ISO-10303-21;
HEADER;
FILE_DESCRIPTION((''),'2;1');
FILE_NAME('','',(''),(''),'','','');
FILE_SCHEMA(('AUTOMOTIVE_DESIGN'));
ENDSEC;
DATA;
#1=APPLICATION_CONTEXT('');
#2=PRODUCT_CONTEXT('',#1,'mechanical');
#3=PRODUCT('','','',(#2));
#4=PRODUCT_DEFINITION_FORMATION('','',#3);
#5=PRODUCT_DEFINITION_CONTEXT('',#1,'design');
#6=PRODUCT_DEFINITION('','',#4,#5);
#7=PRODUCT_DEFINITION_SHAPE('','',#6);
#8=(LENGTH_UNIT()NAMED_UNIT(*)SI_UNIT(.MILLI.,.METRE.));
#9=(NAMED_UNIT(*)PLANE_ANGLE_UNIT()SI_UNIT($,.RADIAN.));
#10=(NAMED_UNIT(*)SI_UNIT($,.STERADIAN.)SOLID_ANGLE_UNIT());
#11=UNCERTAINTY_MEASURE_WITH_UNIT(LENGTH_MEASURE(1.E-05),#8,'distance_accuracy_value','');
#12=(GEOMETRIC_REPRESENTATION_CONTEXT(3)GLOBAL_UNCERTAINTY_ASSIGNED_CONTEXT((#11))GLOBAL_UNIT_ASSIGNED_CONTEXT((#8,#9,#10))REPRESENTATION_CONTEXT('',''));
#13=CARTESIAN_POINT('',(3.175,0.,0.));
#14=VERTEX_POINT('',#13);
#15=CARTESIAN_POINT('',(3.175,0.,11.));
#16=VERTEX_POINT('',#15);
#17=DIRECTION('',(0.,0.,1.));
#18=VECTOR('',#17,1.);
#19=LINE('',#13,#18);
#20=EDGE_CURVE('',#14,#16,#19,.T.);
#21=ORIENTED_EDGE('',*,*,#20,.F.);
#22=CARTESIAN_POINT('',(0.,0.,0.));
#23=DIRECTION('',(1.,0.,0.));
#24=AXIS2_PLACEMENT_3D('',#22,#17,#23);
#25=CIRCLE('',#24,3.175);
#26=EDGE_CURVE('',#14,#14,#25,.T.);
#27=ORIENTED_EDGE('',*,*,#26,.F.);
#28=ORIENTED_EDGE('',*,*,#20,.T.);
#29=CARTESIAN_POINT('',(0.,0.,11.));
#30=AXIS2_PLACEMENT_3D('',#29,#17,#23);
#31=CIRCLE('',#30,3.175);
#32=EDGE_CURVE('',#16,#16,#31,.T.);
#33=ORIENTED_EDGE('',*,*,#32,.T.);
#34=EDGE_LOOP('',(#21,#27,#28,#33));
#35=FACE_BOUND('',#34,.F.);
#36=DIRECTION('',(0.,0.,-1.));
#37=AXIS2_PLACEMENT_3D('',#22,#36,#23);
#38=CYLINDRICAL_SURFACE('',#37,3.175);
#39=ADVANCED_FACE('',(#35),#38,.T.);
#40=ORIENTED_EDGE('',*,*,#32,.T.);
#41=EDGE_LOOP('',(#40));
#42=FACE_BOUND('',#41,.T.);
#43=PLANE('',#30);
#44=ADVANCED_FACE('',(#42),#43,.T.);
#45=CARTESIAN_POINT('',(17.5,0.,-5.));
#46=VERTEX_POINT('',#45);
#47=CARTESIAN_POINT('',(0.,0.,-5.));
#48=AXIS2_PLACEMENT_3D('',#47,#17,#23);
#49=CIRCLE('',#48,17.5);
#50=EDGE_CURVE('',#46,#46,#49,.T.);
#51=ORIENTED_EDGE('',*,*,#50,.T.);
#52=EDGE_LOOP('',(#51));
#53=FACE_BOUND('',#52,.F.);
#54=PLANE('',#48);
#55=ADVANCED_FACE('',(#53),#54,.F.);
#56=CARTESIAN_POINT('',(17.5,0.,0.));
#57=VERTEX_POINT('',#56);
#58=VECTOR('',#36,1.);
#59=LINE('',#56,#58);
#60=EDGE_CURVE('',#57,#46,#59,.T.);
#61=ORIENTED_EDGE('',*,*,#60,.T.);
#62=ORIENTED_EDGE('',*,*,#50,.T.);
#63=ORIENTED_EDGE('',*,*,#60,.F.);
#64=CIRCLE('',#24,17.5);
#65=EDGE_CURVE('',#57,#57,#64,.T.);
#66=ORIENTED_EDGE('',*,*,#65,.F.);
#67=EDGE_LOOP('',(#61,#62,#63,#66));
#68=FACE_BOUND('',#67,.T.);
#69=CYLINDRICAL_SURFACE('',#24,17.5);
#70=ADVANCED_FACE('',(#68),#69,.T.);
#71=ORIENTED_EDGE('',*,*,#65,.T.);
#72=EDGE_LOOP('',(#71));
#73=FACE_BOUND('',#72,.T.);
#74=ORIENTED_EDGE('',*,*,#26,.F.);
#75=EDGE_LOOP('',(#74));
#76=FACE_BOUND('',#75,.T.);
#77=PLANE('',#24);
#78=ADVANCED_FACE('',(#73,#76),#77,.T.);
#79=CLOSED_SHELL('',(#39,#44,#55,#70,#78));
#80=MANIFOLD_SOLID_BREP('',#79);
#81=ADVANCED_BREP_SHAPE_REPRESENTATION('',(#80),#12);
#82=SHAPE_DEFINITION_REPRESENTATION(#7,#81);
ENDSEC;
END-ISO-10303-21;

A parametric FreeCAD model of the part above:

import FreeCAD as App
import Part
import Sketcher
from FreeCAD import Vector
Q = App.Units.Quantity

doc = App.newDocument("Part")
params = doc.addObject("Spreadsheet::Sheet", "Params")
for row, (alias, value) in enumerate([
    ("sketch1_diameter", "35 mm"),
    ("pad1_length", "5 mm"),
    ("sketch2_diameter", "6.35 mm"),
    ("pad2_length", "11 mm"),
], start=1):
    params.set(f"A{row}", alias)
    params.set(f"B{row}", "=" + value)
    params.setAlias(f"B{row}", alias)

body = doc.addObject("PartDesign::Body", "Body")

sketch1 = body.newObject("Sketcher::SketchObject", "Sketch")
sketch1.AttachmentSupport = (doc.getObject("XY_Plane"), [""])
sketch1.MapMode = "FlatFace"
sketch1.addGeometry(Part.Circle(Vector(0, 0, 0), Vector(0, 0, 1), 17.5), False)
sketch1.addConstraint([
    Sketcher.Constraint("Coincident", 0, 3, -1, 1),
    Sketcher.Constraint("Diameter", 0, Q("35 mm")),
])
sketch1.setExpression("Constraints[1]", "Params.sketch1_diameter")
pad1 = body.newObject("PartDesign::Pad", "Pad")
pad1.Profile = sketch1
pad1.setExpression("Length", "Params.pad1_length")
pad1.Reversed = True

sketch2 = body.newObject("Sketcher::SketchObject", "Sketch001")
sketch2.AttachmentSupport = (doc.getObject("XY_Plane"), [""])
sketch2.MapMode = "FlatFace"
sketch2.addGeometry(Part.Circle(Vector(0, 0, 0), Vector(0, 0, 1), 3.175), False)
sketch2.addConstraint([
    Sketcher.Constraint("Coincident", 0, 3, -1, 1),
    Sketcher.Constraint("Diameter", 0, Q("6.35 mm")),
])
sketch2.setExpression("Constraints[1]", "Params.sketch2_diameter")
pad2 = body.newObject("PartDesign::Pad", "Pad001")
pad2.Profile = sketch2
pad2.setExpression("Length", "Params.pad2_length")

doc.recompute()
